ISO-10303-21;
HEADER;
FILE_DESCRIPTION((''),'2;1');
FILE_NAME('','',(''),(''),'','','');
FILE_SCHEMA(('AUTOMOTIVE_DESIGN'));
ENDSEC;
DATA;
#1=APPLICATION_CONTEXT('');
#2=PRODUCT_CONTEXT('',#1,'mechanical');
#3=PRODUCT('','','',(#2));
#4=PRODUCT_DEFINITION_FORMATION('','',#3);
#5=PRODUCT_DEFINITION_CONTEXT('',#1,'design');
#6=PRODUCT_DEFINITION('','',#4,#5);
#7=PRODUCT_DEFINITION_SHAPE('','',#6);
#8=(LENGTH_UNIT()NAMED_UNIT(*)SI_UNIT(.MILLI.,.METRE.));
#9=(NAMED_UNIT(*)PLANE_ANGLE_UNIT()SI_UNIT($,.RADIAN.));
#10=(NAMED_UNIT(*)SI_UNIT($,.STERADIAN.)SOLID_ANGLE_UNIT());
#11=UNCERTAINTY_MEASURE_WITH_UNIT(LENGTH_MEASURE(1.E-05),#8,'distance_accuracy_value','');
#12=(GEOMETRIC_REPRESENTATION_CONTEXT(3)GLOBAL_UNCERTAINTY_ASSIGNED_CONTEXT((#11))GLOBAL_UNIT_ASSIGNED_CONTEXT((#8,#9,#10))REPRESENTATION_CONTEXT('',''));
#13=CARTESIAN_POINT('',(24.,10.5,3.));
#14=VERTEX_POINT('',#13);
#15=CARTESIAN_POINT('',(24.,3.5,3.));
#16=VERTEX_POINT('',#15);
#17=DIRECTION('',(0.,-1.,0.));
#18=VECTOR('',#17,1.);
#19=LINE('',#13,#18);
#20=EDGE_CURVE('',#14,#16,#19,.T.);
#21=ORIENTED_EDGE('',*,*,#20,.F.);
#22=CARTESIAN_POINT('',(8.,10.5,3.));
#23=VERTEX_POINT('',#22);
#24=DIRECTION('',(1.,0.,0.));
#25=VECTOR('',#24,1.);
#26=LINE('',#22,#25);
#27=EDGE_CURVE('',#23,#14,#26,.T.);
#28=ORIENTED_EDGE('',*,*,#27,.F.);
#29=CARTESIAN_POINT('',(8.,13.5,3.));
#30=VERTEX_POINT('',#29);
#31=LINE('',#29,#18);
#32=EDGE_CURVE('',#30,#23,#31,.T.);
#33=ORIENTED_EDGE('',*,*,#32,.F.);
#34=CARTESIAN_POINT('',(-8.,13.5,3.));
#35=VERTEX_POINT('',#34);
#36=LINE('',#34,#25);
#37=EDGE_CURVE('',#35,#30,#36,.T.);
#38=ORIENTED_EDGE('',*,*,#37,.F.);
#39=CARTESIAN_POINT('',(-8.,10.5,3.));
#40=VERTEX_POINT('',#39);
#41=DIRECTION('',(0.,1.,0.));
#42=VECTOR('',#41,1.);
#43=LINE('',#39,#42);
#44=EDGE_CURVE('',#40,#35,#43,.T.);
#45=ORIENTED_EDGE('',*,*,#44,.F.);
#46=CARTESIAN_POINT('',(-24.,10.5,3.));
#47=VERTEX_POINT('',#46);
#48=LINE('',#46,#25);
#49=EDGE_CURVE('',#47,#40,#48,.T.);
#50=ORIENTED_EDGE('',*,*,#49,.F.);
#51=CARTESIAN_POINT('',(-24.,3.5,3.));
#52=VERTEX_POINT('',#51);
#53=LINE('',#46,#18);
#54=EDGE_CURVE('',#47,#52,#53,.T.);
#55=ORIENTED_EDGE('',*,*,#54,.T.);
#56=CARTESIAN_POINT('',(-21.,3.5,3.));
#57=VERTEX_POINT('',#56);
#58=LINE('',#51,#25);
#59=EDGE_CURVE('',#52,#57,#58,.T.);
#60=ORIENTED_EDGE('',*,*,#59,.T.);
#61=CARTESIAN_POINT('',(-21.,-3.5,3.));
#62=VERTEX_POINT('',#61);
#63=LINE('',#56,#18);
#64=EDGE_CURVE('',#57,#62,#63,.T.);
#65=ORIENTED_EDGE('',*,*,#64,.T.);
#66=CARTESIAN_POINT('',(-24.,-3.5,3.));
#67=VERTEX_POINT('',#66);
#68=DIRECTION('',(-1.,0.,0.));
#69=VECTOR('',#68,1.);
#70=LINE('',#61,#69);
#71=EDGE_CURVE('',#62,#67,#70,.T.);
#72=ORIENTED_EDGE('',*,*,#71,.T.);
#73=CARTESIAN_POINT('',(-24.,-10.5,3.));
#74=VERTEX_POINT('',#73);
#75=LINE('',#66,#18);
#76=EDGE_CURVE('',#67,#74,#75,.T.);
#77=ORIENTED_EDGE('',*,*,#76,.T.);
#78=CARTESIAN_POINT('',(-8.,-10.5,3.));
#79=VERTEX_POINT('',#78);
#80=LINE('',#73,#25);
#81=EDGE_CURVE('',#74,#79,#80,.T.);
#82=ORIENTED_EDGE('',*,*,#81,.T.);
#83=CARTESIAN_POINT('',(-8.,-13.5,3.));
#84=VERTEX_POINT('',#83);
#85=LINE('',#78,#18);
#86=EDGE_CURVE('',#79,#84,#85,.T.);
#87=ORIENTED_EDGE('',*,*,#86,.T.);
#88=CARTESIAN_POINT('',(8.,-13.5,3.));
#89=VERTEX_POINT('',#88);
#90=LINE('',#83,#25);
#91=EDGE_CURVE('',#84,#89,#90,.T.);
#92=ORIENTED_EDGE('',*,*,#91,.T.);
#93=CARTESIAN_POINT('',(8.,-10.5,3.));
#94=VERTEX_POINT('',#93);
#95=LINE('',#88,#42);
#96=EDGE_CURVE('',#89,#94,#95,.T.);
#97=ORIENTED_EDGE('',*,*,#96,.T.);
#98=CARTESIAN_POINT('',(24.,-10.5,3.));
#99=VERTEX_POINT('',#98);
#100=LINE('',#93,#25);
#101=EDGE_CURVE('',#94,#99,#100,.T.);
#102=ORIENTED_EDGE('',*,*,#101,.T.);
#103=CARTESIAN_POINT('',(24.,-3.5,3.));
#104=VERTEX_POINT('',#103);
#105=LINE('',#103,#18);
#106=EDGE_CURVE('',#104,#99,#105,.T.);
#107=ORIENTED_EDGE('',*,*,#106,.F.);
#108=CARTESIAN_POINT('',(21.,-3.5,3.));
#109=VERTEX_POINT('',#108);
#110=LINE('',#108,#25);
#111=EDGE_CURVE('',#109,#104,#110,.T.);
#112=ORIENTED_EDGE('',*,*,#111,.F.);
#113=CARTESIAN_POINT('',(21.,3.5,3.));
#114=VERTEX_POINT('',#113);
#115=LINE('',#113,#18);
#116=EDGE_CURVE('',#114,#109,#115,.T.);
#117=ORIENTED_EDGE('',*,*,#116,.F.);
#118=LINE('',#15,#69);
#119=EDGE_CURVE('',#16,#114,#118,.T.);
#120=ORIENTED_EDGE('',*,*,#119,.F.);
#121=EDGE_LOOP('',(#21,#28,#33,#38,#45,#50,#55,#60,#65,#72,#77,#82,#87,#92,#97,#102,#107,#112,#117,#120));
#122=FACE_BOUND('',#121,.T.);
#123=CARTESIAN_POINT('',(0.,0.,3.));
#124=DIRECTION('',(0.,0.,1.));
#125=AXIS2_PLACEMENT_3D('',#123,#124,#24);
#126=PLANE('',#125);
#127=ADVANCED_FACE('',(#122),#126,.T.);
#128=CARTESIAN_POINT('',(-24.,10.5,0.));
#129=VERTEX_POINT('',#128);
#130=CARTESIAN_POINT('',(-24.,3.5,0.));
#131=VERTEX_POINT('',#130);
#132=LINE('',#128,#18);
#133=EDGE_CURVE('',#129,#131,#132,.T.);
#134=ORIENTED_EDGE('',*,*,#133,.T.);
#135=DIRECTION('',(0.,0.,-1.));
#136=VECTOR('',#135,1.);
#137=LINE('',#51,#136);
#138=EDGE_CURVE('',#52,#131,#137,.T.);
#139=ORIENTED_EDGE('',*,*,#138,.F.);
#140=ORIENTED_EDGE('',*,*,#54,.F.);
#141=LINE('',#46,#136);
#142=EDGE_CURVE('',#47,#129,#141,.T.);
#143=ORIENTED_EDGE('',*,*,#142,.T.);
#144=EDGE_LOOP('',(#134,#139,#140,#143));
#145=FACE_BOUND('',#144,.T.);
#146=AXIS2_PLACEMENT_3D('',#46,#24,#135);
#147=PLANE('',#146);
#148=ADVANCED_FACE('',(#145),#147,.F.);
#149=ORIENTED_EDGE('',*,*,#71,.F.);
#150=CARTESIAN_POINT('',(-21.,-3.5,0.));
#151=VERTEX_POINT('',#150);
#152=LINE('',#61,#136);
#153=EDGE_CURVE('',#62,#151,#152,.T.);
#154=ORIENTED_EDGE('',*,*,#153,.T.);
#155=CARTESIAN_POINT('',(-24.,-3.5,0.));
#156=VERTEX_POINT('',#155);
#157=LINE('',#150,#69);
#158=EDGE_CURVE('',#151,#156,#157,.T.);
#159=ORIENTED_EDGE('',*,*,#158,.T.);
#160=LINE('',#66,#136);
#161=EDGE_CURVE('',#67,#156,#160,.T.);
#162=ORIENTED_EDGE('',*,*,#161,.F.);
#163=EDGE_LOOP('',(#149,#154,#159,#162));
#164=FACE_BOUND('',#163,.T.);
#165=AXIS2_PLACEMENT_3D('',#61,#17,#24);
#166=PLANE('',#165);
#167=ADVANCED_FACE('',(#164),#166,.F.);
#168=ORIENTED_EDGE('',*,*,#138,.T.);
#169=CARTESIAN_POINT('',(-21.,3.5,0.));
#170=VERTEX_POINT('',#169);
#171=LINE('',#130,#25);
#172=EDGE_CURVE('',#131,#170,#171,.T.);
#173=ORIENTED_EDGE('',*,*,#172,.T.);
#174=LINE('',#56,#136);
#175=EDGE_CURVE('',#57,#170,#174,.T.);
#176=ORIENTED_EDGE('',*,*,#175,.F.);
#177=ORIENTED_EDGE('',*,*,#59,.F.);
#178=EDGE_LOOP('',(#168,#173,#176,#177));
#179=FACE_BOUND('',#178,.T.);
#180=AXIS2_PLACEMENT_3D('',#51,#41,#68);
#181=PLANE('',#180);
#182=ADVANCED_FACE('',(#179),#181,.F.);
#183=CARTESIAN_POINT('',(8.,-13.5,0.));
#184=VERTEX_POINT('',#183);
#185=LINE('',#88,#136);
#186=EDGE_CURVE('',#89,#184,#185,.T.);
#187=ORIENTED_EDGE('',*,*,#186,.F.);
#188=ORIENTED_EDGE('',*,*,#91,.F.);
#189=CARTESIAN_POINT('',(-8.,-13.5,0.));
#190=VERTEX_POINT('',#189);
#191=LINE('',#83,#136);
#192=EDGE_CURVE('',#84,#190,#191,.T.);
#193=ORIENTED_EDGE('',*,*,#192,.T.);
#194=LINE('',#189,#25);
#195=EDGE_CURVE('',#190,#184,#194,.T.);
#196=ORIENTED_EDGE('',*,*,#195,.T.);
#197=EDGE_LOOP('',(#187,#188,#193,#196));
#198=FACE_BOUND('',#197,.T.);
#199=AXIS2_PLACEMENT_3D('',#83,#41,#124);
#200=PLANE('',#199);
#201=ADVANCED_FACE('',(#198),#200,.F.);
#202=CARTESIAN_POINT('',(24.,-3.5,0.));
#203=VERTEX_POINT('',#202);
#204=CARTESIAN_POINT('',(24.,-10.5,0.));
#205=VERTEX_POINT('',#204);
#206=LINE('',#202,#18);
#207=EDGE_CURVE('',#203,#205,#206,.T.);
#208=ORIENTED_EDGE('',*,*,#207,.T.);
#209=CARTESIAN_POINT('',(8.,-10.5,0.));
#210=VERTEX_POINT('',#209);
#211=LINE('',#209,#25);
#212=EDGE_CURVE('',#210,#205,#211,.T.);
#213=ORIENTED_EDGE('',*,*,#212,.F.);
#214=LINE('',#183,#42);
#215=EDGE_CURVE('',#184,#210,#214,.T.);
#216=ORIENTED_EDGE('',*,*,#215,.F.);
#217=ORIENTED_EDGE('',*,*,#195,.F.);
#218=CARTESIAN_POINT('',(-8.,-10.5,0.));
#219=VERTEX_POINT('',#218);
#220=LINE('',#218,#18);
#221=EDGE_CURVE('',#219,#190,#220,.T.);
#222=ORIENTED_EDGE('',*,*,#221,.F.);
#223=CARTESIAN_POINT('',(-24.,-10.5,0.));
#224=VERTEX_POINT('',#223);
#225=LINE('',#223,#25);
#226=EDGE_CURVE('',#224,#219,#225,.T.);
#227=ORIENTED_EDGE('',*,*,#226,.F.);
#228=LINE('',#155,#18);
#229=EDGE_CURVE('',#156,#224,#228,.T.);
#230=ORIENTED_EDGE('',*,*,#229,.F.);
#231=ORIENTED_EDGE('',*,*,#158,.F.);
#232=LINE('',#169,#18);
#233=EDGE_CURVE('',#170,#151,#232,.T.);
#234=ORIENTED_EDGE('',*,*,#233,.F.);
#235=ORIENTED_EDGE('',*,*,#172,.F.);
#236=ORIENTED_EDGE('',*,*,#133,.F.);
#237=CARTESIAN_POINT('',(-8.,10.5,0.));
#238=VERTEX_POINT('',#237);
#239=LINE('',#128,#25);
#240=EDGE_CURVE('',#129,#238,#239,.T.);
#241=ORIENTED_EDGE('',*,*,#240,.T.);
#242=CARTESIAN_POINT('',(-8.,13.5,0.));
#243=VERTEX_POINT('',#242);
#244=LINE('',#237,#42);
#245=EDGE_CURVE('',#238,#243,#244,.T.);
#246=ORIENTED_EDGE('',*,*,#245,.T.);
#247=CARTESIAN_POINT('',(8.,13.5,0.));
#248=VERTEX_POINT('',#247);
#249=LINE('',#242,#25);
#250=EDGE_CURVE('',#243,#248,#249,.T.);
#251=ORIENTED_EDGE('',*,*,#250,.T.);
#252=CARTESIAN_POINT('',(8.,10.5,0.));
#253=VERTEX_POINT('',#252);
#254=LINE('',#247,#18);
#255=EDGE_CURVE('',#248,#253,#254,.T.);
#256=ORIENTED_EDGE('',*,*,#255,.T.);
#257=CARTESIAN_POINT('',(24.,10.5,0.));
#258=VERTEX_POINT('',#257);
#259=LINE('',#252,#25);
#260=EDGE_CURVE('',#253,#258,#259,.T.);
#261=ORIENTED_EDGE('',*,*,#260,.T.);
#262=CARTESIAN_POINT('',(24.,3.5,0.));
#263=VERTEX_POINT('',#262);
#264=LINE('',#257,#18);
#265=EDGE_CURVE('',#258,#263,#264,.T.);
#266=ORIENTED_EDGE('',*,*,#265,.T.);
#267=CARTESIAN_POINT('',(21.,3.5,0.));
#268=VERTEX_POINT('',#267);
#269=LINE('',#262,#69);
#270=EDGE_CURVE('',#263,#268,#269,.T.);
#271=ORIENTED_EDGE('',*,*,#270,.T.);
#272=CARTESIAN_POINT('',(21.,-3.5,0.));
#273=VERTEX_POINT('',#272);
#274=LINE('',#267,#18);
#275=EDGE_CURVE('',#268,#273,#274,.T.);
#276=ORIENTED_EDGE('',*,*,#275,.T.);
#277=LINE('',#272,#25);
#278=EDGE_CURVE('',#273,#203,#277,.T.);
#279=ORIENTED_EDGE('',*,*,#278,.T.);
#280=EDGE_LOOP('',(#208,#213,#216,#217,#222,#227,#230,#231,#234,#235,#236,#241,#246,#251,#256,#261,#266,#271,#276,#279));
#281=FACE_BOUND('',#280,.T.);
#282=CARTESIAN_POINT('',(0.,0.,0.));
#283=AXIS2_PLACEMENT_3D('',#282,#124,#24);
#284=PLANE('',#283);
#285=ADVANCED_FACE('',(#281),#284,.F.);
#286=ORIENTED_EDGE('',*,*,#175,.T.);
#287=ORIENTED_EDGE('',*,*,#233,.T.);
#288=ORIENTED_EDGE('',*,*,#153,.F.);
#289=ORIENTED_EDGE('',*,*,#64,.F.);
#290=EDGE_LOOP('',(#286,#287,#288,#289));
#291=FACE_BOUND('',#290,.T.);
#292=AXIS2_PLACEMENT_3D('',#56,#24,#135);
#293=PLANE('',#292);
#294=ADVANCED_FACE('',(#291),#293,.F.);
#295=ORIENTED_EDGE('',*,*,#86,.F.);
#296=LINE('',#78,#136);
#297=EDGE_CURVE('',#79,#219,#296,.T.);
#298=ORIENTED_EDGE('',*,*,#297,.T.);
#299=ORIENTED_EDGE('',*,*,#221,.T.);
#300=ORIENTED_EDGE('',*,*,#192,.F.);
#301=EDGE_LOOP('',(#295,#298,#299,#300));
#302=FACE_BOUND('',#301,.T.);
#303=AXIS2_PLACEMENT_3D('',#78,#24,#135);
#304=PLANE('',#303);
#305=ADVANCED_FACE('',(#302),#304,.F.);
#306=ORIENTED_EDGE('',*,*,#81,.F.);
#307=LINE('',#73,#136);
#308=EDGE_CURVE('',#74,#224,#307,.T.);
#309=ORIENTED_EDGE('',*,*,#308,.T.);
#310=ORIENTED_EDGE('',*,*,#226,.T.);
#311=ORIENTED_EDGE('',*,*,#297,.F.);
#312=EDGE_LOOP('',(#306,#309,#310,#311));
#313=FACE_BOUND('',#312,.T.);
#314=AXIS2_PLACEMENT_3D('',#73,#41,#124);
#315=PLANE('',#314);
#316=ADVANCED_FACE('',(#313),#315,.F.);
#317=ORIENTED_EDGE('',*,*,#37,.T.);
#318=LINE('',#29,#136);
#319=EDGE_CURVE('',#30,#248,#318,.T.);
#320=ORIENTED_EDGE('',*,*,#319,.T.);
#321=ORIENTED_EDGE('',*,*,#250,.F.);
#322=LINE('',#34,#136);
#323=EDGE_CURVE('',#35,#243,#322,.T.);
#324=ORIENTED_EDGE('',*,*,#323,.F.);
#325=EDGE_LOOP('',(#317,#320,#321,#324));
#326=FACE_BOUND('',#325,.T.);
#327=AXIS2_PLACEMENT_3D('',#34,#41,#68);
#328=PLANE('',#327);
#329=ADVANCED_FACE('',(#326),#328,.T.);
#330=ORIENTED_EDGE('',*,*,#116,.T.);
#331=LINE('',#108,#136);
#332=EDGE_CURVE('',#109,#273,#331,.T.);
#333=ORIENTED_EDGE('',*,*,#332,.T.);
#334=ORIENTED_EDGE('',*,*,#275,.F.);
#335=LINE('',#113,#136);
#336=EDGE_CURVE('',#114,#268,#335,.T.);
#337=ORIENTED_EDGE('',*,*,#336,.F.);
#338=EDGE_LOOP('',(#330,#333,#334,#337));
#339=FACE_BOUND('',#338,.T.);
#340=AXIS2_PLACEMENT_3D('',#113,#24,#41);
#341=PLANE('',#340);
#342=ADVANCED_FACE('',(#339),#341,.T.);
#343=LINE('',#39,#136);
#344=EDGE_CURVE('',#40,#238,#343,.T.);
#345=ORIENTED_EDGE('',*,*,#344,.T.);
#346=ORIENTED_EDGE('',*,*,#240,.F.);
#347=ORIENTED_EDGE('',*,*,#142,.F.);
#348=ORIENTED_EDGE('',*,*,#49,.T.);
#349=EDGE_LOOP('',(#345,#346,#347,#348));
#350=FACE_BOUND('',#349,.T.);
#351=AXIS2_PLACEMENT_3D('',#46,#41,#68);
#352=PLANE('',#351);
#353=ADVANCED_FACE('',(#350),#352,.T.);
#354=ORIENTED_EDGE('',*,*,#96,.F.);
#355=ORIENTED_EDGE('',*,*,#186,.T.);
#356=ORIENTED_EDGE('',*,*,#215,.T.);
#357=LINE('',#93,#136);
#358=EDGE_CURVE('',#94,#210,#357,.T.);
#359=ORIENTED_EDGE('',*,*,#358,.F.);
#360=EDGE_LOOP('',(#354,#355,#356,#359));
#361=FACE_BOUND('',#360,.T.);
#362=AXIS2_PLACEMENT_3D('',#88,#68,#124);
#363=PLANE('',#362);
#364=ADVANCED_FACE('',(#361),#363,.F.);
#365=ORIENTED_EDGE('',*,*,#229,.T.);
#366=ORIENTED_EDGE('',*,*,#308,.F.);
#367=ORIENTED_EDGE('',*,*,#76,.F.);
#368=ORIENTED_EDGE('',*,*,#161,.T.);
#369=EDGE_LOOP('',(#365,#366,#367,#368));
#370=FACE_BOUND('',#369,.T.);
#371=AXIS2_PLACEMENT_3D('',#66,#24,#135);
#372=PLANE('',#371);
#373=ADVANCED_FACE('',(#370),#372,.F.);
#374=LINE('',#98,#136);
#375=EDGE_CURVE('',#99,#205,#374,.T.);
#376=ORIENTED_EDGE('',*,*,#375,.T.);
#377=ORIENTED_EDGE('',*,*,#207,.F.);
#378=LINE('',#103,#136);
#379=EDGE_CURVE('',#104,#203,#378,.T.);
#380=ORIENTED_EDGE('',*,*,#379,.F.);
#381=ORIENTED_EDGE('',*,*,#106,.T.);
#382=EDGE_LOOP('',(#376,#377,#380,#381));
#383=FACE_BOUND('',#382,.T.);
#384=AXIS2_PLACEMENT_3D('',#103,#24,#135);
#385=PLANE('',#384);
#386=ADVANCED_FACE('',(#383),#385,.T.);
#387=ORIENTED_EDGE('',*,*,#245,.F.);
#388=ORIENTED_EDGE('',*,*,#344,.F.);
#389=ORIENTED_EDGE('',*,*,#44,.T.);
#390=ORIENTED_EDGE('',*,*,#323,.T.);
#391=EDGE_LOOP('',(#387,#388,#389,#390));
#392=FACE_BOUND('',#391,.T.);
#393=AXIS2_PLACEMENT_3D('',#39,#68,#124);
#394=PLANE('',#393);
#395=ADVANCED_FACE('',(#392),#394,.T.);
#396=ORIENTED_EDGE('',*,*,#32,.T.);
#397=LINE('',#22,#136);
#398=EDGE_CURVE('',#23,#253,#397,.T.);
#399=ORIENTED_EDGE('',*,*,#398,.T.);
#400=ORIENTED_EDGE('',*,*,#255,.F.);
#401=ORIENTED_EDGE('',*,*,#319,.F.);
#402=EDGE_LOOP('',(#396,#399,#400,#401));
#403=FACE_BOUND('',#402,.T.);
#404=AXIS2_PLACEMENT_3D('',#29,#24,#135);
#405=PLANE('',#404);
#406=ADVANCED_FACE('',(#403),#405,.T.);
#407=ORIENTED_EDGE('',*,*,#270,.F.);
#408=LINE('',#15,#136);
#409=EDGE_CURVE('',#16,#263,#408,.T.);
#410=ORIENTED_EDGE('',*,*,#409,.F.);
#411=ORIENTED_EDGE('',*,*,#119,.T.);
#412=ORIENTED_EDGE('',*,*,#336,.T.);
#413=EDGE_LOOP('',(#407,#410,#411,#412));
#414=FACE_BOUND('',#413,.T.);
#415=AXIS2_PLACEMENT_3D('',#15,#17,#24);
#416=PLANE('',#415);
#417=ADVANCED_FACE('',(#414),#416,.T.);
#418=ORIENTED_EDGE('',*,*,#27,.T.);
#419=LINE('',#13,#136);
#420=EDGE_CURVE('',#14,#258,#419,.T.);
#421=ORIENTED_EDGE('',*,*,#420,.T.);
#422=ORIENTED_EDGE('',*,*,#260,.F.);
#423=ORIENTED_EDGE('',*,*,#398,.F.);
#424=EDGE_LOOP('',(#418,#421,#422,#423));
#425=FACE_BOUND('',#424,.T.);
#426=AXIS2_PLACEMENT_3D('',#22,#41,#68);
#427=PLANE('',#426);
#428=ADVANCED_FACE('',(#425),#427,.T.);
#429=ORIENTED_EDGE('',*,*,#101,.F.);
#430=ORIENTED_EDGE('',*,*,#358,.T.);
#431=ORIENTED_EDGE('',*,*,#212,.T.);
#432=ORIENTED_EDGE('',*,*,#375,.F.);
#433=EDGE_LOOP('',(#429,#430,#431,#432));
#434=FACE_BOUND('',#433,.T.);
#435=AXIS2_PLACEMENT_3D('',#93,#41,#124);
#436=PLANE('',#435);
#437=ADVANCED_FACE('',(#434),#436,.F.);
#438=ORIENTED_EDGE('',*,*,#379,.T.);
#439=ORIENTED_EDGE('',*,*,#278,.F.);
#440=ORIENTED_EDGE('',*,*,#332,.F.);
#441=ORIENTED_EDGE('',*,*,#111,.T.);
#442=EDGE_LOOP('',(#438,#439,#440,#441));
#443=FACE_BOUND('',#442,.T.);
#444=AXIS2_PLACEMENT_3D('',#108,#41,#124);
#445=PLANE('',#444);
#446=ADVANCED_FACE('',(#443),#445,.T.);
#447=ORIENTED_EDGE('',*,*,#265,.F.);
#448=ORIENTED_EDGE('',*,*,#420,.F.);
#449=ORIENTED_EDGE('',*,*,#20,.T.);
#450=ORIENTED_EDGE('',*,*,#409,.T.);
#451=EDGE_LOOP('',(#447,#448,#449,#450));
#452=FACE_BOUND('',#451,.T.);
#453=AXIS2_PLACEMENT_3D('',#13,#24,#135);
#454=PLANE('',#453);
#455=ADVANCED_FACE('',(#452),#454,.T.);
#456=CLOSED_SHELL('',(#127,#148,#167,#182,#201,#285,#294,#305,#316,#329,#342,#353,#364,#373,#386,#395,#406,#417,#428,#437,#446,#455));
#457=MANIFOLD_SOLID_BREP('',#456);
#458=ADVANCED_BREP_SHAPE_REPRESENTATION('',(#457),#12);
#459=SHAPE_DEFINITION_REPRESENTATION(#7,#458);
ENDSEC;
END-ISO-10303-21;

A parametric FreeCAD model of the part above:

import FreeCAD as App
import Part
import Sketcher

V = App.Vector
Q = App.Units.Quantity

doc = App.newDocument("Part")
body = doc.addObject("PartDesign::Body", "Body")

# Sketch on XY plane
sketch1 = doc.addObject("Sketcher::SketchObject", "Sketch")
body.addObject(sketch1)
sketch1.AttachmentSupport = (doc.XY_Plane, [""])
sketch1.MapMode = "FlatFace"
sketch1.addGeometry(Part.LineSegment(V(-8, 10.5, 0), V(-24, 10.5, 0)), False)
sketch1.addGeometry(Part.LineSegment(V(-24, 10.5, 0), V(-24, 3.5, 0)), False)
sketch1.addGeometry(Part.LineSegment(V(-24, 3.5, 0), V(-21, 3.5, 0)), False)
sketch1.addGeometry(Part.LineSegment(V(-21, 3.5, 0), V(-21, -3.5, 0)), False)
sketch1.addGeometry(Part.LineSegment(V(-21, -3.5, 0), V(-24, -3.5, 0)), False)
sketch1.addGeometry(Part.LineSegment(V(-24, -3.5, 0), V(-24, -10.5, 0)), False)
sketch1.addGeometry(Part.LineSegment(V(-24, -10.5, 0), V(-8, -10.5, 0)), False)
sketch1.addGeometry(Part.LineSegment(V(-8, -10.5, 0), V(-8, -13.5, 0)), False)
sketch1.addGeometry(Part.LineSegment(V(-8, -13.5, 0), V(8, -13.5, 0)), False)
sketch1.addGeometry(Part.LineSegment(V(8, -13.5, 0), V(8, -10.5, 0)), False)
sketch1.addGeometry(Part.LineSegment(V(8, -10.5, 0), V(24, -10.5, 0)), False)
sketch1.addGeometry(Part.LineSegment(V(24, -10.5, 0), V(24, -3.5, 0)), False)
sketch1.addGeometry(Part.LineSegment(V(24, -3.5, 0), V(21, -3.5, 0)), False)
sketch1.addGeometry(Part.LineSegment(V(21, -3.5, 0), V(21, 3.5, 0)), False)
sketch1.addGeometry(Part.LineSegment(V(21, 3.5, 0), V(24, 3.5, 0)), False)
sketch1.addGeometry(Part.LineSegment(V(24, 3.5, 0), V(24, 10.5, 0)), False)
sketch1.addGeometry(Part.LineSegment(V(24, 10.5, 0), V(8, 10.5, 0)), False)
sketch1.addGeometry(Part.LineSegment(V(8, 10.5, 0), V(8, 13.5, 0)), False)
sketch1.addGeometry(Part.LineSegment(V(8, 13.5, 0), V(-8, 13.5, 0)), False)
sketch1.addGeometry(Part.LineSegment(V(-8, 13.5, 0), V(-8, 10.5, 0)), False)
sketch1.addConstraint(Sketcher.Constraint("Coincident", 0, 2, 1, 1))
sketch1.addConstraint(Sketcher.Constraint("Coincident", 1, 2, 2, 1))
sketch1.addConstraint(Sketcher.Constraint("Coincident", 2, 2, 3, 1))
sketch1.addConstraint(Sketcher.Constraint("Coincident", 3, 2, 4, 1))
sketch1.addConstraint(Sketcher.Constraint("Coincident", 4, 2, 5, 1))
sketch1.addConstraint(Sketcher.Constraint("Coincident", 5, 2, 6, 1))
sketch1.addConstraint(Sketcher.Constraint("Coincident", 6, 2, 7, 1))
sketch1.addConstraint(Sketcher.Constraint("Coincident", 7, 2, 8, 1))
sketch1.addConstraint(Sketcher.Constraint("Coincident", 8, 2, 9, 1))
sketch1.addConstraint(Sketcher.Constraint("Coincident", 9, 2, 10, 1))
sketch1.addConstraint(Sketcher.Constraint("Coincident", 10, 2, 11, 1))
sketch1.addConstraint(Sketcher.Constraint("Coincident", 11, 2, 12, 1))
sketch1.addConstraint(Sketcher.Constraint("Coincident", 12, 2, 13, 1))
sketch1.addConstraint(Sketcher.Constraint("Coincident", 13, 2, 14, 1))
sketch1.addConstraint(Sketcher.Constraint("Coincident", 14, 2, 15, 1))
sketch1.addConstraint(Sketcher.Constraint("Coincident", 15, 2, 16, 1))
sketch1.addConstraint(Sketcher.Constraint("Coincident", 16, 2, 17, 1))
sketch1.addConstraint(Sketcher.Constraint("Coincident", 17, 2, 18, 1))
sketch1.addConstraint(Sketcher.Constraint("Coincident", 18, 2, 19, 1))
sketch1.addConstraint(Sketcher.Constraint("Coincident", 19, 2, 0, 1))
sketch1.addConstraint(Sketcher.Constraint("Horizontal", 0))
sketch1.addConstraint(Sketcher.Constraint("Vertical", 1))
sketch1.addConstraint(Sketcher.Constraint("Horizontal", 2))
sketch1.addConstraint(Sketcher.Constraint("Vertical", 3))
sketch1.addConstraint(Sketcher.Constraint("Horizontal", 4))
sketch1.addConstraint(Sketcher.Constraint("Vertical", 5))
sketch1.addConstraint(Sketcher.Constraint("Horizontal", 6))
sketch1.addConstraint(Sketcher.Constraint("Vertical", 7))
sketch1.addConstraint(Sketcher.Constraint("Horizontal", 8))
sketch1.addConstraint(Sketcher.Constraint("Vertical", 9))
sketch1.addConstraint(Sketcher.Constraint("Horizontal", 10))
sketch1.addConstraint(Sketcher.Constraint("Vertical", 11))
sketch1.addConstraint(Sketcher.Constraint("Horizontal", 12))
sketch1.addConstraint(Sketcher.Constraint("Vertical", 13))
sketch1.addConstraint(Sketcher.Constraint("Horizontal", 14))
sketch1.addConstraint(Sketcher.Constraint("Vertical", 15))
sketch1.addConstraint(Sketcher.Constraint("Horizontal", 16))
sketch1.addConstraint(Sketcher.Constraint("Vertical", 17))
sketch1.addConstraint(Sketcher.Constraint("Horizontal", 18))
sketch1.addConstraint(Sketcher.Constraint("Vertical", 19))
sketch1.addConstraint(Sketcher.Constraint("Symmetric", 0, 2, 10, 2, -1, 1))
sketch1.addConstraint(Sketcher.Constraint("Symmetric", 2, 2, 12, 2, -1, 1))
sketch1.addConstraint(Sketcher.Constraint("Symmetric", 4, 2, 14, 2, -1, 1))
sketch1.addConstraint(Sketcher.Constraint("Symmetric", 6, 2, 16, 2, -1, 1))
sketch1.addConstraint(Sketcher.Constraint("Symmetric", 8, 2, 18, 2, -1, 1))
sketch1.addConstraint(Sketcher.Constraint("Symmetric", 6, 2, 9, 2, -2))
sketch1.addConstraint(Sketcher.Constraint("Symmetric", 4, 2, 11, 2, -2))
sketch1.addConstraint(Sketcher.Constraint("Equal", 6, 8))
sketch1.addConstraint(Sketcher.Constraint("Equal", 1, 3))
sketch1.addConstraint(Sketcher.Constraint("Equal", 14, 7))
sketch1.addConstraint(Sketcher.Constraint("DistanceX", 0, 2, 0, 1, Q("16 mm")))
sketch1.addConstraint(Sketcher.Constraint("DistanceX", 2, 1, 2, 2, Q("3 mm")))
sketch1.addConstraint(Sketcher.Constraint("DistanceY", 1, 2, 1, 1, Q("7 mm")))
pad1 = doc.addObject("PartDesign::Pad", "Pad")
body.addObject(pad1)
pad1.Profile = sketch1
pad1.Length = 3

doc.recompute()
